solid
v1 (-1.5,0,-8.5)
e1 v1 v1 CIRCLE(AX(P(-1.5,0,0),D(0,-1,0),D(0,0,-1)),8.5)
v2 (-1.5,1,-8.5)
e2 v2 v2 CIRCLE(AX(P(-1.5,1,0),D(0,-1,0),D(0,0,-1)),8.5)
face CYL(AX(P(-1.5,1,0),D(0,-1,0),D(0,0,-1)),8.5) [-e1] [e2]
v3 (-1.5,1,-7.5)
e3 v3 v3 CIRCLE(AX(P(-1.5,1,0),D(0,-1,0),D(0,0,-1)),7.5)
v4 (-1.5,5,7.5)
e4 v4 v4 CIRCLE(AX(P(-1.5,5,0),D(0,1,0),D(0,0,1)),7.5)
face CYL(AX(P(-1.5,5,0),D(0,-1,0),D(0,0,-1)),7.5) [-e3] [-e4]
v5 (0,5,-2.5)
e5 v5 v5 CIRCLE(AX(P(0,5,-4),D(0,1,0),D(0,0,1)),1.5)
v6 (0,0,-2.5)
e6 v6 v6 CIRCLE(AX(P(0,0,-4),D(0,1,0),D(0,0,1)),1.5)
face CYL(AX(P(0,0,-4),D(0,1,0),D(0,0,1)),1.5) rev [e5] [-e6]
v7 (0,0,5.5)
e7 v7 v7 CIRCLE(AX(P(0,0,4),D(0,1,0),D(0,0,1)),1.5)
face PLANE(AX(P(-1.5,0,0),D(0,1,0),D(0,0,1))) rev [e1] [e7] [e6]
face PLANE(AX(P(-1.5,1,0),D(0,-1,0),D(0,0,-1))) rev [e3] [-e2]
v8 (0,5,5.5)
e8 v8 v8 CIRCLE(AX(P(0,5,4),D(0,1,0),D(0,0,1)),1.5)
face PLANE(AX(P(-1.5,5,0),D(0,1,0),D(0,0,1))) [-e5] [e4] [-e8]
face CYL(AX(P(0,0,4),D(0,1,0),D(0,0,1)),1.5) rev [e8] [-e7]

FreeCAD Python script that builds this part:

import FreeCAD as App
import Part
import Sketcher
Q = App.Units.Quantity

doc = App.newDocument("Part")
params = doc.addObject("Spreadsheet::Sheet", "Params")
for row, (alias, value) in enumerate([
    ("sketch1_diameter", "15 mm"),
    ("pad1_length", "5 mm"),
    ("sketch2_diameter", "17 mm"),
    ("pad2_length", "1 mm"),
    ("sketch3_diameter", "3 mm"),
], start=1):
    params.set(f"A{row}", alias)
    params.set(f"B{row}", "=" + value)
    params.setAlias(f"B{row}", alias)

body = doc.addObject("PartDesign::Body", "Body")

# Sketch on XZ plane
sketch1 = doc.addObject("Sketcher::SketchObject", "Sketch")
body.addObject(sketch1)
sketch1.AttachmentSupport = (doc.XZ_Plane, [""])
sketch1.MapMode = "FlatFace"
sketch1.addGeometry(Part.Circle(App.Vector(-2, 0, 0), App.Vector(0, 0, 1), 8), False)
sketch1.addConstraint([
    Sketcher.Constraint("PointOnObject", 0, 3, -1),
    Sketcher.Constraint("Diameter", 0, Q("15 mm")),
    Sketcher.Constraint("DistanceX", 0, 3, -1, 1, Q("1.5 mm")),
])
sketch1.setExpression("Constraints[1]", "Params.sketch1_diameter")
pad1 = doc.addObject("PartDesign::Pad", "Pad")
body.addObject(pad1)
pad1.Profile = sketch1
pad1.setExpression("Length", "Params.pad1_length")
pad1.Reversed = True

# Sketch on XZ plane
sketch2 = doc.addObject("Sketcher::SketchObject", "Sketch001")
body.addObject(sketch2)
sketch2.AttachmentSupport = (doc.XZ_Plane, [""])
sketch2.MapMode = "FlatFace"
sketch2.addGeometry(Part.Circle(App.Vector(-2, 0, 0), App.Vector(0, 0, 1), 8), False)
sketch2.addConstraint([
    Sketcher.Constraint("PointOnObject", 0, 3, -1),
    Sketcher.Constraint("Diameter", 0, Q("17 mm")),
    Sketcher.Constraint("DistanceX", 0, 3, -1, 1, Q("1.5 mm")),
])
sketch2.setExpression("Constraints[1]", "Params.sketch2_diameter")
pad2 = doc.addObject("PartDesign::Pad", "Pad001")
body.addObject(pad2)
pad2.Profile = sketch2
pad2.setExpression("Length", "Params.pad2_length")
pad2.Reversed = True

# Sketch on XZ plane
sketch3 = doc.addObject("Sketcher::SketchObject", "Sketch002")
body.addObject(sketch3)
sketch3.AttachmentSupport = (doc.XZ_Plane, [""])
sketch3.MapMode = "FlatFace"
sketch3.AttachmentOffset = App.Placement(App.Vector(0, 0, -5), App.Rotation())
sketch3.addGeometry([
    Part.Circle(App.Vector(0, -4, 0), App.Vector(0, 0, 1), 1.5),
    Part.Circle(App.Vector(0, 4, 0), App.Vector(0, 0, 1), 1.5),
], False)
sketch3.addConstraint([
    Sketcher.Constraint("Equal", 0, 1),
    Sketcher.Constraint("Symmetric", 0, 3, 1, 3, -1, 1),
    Sketcher.Constraint("PointOnObject", 0, 3, -2),
    Sketcher.Constraint("Diameter", 0, Q("3 mm")),
    Sketcher.Constraint("DistanceY", 0, 3, -1, 1, Q("4 mm")),
])
sketch3.setExpression("Constraints[3]", "Params.sketch3_diameter")
pocket1 = doc.addObject("PartDesign::Pocket", "Pocket")
body.addObject(pocket1)
pocket1.Profile = sketch3
pocket1.Type = "ThroughAll"
pocket1.Reversed = True

doc.recompute()
